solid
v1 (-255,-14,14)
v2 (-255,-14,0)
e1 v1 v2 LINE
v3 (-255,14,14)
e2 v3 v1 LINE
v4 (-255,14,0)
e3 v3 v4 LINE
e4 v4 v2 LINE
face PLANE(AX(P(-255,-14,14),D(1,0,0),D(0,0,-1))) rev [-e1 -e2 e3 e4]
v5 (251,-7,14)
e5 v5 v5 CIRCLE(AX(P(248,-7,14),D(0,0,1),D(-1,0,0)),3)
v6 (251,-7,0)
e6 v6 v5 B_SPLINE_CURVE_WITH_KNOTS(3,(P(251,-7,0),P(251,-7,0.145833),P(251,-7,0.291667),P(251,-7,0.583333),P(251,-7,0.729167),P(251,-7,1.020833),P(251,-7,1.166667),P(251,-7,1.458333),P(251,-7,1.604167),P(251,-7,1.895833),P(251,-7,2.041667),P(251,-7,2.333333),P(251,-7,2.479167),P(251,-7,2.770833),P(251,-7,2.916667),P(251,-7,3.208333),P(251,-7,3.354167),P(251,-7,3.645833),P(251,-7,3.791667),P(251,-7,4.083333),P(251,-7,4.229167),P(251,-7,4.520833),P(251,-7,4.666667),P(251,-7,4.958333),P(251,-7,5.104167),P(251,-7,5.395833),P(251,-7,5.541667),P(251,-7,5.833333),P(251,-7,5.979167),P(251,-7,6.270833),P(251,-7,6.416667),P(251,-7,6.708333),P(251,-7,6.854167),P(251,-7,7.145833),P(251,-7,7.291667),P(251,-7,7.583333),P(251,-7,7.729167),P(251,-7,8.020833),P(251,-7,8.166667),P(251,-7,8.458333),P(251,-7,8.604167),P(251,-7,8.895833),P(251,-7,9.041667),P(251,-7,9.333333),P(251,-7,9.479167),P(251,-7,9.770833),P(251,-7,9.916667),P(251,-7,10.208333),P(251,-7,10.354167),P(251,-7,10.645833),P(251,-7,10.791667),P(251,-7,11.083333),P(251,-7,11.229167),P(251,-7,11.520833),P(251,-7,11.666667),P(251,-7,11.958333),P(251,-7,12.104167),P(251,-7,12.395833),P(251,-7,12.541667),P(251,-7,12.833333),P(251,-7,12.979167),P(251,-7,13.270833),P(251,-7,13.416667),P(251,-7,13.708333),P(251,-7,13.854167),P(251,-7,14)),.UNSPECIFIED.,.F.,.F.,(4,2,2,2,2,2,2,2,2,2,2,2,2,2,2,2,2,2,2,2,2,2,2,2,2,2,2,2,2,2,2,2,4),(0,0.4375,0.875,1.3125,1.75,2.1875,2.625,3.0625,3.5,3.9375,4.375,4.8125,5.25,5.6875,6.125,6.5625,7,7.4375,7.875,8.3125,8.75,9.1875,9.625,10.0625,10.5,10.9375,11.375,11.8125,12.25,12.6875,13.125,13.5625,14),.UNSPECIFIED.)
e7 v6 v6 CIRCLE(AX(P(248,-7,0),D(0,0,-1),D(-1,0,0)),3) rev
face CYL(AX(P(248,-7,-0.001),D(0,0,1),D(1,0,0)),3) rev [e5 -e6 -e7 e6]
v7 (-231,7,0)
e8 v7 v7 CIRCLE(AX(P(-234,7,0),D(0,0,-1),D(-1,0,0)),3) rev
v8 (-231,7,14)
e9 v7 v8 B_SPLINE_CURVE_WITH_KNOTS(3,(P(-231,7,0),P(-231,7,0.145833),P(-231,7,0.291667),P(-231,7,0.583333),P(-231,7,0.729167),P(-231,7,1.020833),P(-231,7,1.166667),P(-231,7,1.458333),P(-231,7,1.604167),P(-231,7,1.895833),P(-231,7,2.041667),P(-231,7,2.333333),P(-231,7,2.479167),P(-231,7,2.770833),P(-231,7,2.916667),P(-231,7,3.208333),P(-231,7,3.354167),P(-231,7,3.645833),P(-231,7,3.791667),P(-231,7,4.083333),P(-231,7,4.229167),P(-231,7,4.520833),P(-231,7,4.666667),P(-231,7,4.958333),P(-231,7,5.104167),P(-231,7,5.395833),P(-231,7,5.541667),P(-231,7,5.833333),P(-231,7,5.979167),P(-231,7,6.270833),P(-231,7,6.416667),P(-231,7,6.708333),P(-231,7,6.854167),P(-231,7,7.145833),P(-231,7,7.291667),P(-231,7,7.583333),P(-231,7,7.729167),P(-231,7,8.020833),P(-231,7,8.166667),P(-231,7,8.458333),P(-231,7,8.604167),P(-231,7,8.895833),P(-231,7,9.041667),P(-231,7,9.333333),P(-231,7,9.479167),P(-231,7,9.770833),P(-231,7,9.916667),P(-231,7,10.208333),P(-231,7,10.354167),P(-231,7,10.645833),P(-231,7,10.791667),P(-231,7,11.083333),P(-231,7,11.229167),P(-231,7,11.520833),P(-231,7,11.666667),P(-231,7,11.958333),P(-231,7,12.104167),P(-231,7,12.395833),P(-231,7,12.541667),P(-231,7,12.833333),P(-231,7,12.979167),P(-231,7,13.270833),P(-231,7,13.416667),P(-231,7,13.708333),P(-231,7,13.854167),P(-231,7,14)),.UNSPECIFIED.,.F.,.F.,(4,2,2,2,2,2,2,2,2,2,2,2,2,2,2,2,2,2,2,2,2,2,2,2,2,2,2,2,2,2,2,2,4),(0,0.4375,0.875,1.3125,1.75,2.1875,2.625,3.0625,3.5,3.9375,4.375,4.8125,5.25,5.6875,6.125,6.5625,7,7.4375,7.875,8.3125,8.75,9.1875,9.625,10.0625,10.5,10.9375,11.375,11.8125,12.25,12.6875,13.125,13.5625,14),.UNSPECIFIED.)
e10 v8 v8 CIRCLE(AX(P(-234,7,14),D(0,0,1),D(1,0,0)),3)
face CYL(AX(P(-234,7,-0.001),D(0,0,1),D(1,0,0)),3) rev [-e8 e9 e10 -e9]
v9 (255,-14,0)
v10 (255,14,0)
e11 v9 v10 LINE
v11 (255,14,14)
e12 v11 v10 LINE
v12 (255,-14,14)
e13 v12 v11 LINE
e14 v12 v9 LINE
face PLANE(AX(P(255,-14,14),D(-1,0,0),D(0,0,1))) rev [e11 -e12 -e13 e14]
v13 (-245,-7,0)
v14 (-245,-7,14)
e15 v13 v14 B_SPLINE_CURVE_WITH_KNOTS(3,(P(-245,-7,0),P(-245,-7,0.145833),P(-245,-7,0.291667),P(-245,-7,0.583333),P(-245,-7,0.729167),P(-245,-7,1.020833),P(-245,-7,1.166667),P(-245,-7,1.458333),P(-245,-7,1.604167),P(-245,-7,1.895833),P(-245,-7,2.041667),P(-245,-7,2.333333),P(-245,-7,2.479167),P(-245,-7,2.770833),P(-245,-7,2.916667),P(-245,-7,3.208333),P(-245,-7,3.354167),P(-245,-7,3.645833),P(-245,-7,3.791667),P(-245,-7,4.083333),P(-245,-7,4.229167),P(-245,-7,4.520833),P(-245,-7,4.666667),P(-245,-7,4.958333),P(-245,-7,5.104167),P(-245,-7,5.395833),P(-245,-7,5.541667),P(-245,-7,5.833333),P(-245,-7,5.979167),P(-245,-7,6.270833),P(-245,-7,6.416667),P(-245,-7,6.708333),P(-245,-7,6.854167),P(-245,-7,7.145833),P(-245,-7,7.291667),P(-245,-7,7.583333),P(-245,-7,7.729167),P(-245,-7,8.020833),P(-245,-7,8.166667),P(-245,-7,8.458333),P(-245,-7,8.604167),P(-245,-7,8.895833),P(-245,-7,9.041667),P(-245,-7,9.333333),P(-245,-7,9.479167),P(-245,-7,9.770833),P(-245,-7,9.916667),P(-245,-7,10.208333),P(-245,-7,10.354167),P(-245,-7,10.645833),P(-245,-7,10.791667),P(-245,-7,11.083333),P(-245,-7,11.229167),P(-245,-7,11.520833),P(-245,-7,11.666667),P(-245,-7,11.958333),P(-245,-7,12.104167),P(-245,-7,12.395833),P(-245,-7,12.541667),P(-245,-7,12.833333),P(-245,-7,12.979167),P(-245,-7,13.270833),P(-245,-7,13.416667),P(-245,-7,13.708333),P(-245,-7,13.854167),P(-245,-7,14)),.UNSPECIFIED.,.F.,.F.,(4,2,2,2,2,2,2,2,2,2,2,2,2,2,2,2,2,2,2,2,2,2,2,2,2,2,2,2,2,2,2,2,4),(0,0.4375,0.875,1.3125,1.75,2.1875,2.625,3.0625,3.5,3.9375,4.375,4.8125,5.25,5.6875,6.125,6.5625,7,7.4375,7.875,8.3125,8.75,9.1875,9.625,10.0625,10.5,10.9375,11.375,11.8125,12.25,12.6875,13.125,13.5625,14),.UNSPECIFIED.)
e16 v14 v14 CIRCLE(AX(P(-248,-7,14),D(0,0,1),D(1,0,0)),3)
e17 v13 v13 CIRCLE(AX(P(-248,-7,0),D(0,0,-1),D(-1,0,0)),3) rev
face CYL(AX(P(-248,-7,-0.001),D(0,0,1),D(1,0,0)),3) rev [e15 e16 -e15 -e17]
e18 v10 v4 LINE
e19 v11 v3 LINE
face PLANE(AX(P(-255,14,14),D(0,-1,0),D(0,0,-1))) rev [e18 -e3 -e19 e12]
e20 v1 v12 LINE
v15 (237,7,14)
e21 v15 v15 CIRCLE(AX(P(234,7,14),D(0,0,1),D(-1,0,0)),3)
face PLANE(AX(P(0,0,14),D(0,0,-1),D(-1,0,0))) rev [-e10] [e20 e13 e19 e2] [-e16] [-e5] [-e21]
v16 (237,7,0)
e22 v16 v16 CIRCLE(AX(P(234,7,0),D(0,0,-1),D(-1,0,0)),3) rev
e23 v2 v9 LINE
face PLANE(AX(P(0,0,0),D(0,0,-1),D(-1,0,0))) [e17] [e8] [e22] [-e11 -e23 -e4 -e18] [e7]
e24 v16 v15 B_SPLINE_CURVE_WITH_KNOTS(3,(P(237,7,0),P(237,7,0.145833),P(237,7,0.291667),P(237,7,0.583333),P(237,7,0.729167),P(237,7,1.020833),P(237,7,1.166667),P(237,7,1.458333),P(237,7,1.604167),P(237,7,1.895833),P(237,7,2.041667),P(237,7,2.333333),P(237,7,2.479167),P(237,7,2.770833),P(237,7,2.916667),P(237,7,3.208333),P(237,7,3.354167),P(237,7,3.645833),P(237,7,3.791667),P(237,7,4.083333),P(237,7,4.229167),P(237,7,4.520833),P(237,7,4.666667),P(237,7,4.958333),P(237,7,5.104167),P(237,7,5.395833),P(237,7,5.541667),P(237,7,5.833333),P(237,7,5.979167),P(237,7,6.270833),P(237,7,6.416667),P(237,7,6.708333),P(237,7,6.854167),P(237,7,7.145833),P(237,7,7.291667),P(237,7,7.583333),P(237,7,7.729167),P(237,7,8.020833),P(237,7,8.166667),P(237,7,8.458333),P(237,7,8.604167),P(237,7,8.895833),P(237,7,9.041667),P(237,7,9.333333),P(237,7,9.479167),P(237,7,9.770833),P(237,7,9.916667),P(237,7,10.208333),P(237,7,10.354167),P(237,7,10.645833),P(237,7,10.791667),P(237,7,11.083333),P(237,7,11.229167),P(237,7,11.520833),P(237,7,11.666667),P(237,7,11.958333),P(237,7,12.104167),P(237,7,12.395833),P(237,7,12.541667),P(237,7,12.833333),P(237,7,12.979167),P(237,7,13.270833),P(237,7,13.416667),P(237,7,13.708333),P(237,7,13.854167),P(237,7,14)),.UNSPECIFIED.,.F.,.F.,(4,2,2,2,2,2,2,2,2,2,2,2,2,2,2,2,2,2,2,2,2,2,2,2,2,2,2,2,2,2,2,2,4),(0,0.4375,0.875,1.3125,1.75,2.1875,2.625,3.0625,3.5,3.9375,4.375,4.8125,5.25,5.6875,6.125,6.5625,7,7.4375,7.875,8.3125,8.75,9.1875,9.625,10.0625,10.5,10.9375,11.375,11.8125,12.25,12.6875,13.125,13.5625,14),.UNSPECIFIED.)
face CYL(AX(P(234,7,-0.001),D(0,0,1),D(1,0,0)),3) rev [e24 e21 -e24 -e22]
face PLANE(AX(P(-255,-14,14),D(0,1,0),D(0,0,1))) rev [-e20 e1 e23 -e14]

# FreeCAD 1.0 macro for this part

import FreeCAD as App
import Part
import Sketcher
from FreeCAD import Vector


def add_polygon(sketch, points):
    """Adds a closed chain of lines whose ends are joined by coincident constraints."""
    first, n = sketch.GeometryCount, len(points)
    for a, b in zip(points, points[1:] + points[:1]):
        sketch.addGeometry(Part.LineSegment(App.Vector(*a, 0), App.Vector(*b, 0)), False)
    for i in range(n):
        sketch.addConstraint(Sketcher.Constraint("Coincident", first + i, 2, first + (i + 1) % n, 1))

doc = App.newDocument("Part")
body = doc.addObject("PartDesign::Body", "Body")

sketch1 = body.newObject("Sketcher::SketchObject", "Sketch")
sketch1.AttachmentSupport = (doc.getObject("XY_Plane"), [""])
sketch1.MapMode = "FlatFace"
add_polygon(sketch1, [(-255, 14), (-255, -14), (255, -14), (255, 14)])
sketch1.addConstraint(Sketcher.Constraint("Vertical", 0))
sketch1.addConstraint(Sketcher.Constraint("Horizontal", 1))
sketch1.addConstraint(Sketcher.Constraint("Vertical", 2))
sketch1.addConstraint(Sketcher.Constraint("Horizontal", 3))
sketch1.addConstraint(Sketcher.Constraint("Symmetric", 0, 2, 2, 2, -1, 1))
sketch1.addConstraint(Sketcher.Constraint("DistanceX", 1, 1, 1, 2, 510.0))
sketch1.addConstraint(Sketcher.Constraint("DistanceY", 0, 2, 0, 1, 28.0))
pad1 = body.newObject("PartDesign::Pad", "Pad")
pad1.Profile = sketch1
pad1.Length = 14

sketch2 = body.newObject("Sketcher::SketchObject", "Sketch001")
sketch2.AttachmentSupport = (doc.getObject("XY_Plane"), [""])
sketch2.MapMode = "FlatFace"
sketch2.AttachmentOffset = App.Placement(Vector(0, 0, 14), App.Rotation())
sketch2.addGeometry(Part.Circle(Vector(-234, 7, 0), Vector(0, 0, 1), 3), False)
sketch2.addConstraint(Sketcher.Constraint("Diameter", 0, 6.0))
sketch2.addConstraint(Sketcher.Constraint("DistanceX", 0, 3, -1, 1, 234.0))
sketch2.addConstraint(Sketcher.Constraint("DistanceY", -1, 1, 0, 3, 7.0))
pocket1 = body.newObject("PartDesign::Pocket", "Pocket")
pocket1.Profile = sketch2
pocket1.Type = "UpToFirst"

sketch3 = body.newObject("Sketcher::SketchObject", "Sketch002")
sketch3.AttachmentSupport = (doc.getObject("XY_Plane"), [""])
sketch3.MapMode = "FlatFace"
sketch3.AttachmentOffset = App.Placement(Vector(0, 0, 14), App.Rotation())
sketch3.addGeometry(Part.Circle(Vector(-248, -7, 0), Vector(0, 0, 1), 3), False)
sketch3.addConstraint(Sketcher.Constraint("Diameter", 0, 6.0))
sketch3.addConstraint(Sketcher.Constraint("DistanceX", 0, 3, -1, 1, 248.0))
sketch3.addConstraint(Sketcher.Constraint("DistanceY", 0, 3, -1, 1, 7.0))
pocket2 = body.newObject("PartDesign::Pocket", "Pocket001")
pocket2.Profile = sketch3
pocket2.Type = "UpToFirst"

sketch4 = body.newObject("Sketcher::SketchObject", "Sketch003")
sketch4.AttachmentSupport = (doc.getObject("XY_Plane"), [""])
sketch4.MapMode = "FlatFace"
sketch4.AttachmentOffset = App.Placement(Vector(0, 0, 14), App.Rotation())
sketch4.addGeometry(Part.Circle(Vector(248, -7, 0), Vector(0, 0, 1), 3), False)
sketch4.addConstraint(Sketcher.Constraint("Diameter", 0, 6.0))
sketch4.addConstraint(Sketcher.Constraint("DistanceX", -1, 1, 0, 3, 248.0))
sketch4.addConstraint(Sketcher.Constraint("DistanceY", 0, 3, -1, 1, 7.0))
pocket3 = body.newObject("PartDesign::Pocket", "Pocket002")
pocket3.Profile = sketch4
pocket3.Type = "UpToFirst"

sketch5 = body.newObject("Sketcher::SketchObject", "Sketch004")
sketch5.AttachmentSupport = (doc.getObject("XY_Plane"), [""])
sketch5.MapMode = "FlatFace"
sketch5.AttachmentOffset = App.Placement(Vector(0, 0, 14), App.Rotation())
sketch5.addGeometry(Part.Circle(Vector(234, 7, 0), Vector(0, 0, 1), 3), False)
sketch5.addConstraint(Sketcher.Constraint("Diameter", 0, 6.0))
sketch5.addConstraint(Sketcher.Constraint("DistanceX", -1, 1, 0, 3, 234.0))
sketch5.addConstraint(Sketcher.Constraint("DistanceY", -1, 1, 0, 3, 7.0))
pocket4 = body.newObject("PartDesign::Pocket", "Pocket003")
pocket4.Profile = sketch5
pocket4.Type = "UpToFirst"

doc.recompute()
